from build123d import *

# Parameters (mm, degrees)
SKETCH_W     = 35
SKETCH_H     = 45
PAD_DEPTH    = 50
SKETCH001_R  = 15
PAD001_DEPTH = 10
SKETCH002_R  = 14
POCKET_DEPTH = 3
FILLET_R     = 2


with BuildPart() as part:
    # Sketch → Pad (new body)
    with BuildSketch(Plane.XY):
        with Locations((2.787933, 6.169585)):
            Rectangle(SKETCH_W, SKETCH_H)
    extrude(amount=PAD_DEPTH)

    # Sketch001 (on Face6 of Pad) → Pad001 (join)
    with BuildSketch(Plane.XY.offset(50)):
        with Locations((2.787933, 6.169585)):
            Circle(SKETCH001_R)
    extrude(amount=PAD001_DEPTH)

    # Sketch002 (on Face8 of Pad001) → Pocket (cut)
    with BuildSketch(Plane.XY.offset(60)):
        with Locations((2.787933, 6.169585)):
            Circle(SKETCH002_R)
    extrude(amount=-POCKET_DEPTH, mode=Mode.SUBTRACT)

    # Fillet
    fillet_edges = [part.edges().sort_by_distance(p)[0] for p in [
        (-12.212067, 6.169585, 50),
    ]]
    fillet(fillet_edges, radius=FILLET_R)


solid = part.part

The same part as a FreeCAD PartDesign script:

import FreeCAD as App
import Part
import Sketcher
from FreeCAD import Vector


def edges_at(feature, points):
    """Names of the edges that pass closest to the given points."""
    edges = feature.Shape.Edges
    near = lambda p: min(range(len(edges)), key=lambda i: edges[i].distToShape(Part.Vertex(*p))[0])
    return sorted({f"Edge{near(p) + 1}" for p in points})


def add_polygon(sketch, points):
    """Adds a closed chain of lines whose ends are joined by coincident constraints."""
    first, n = sketch.GeometryCount, len(points)
    for a, b in zip(points, points[1:] + points[:1]):
        sketch.addGeometry(Part.LineSegment(App.Vector(*a, 0), App.Vector(*b, 0)), False)
    for i in range(n):
        sketch.addConstraint(Sketcher.Constraint("Coincident", first + i, 2, first + (i + 1) % n, 1))

doc = App.newDocument("Part")
body = doc.addObject("PartDesign::Body", "Body")

# Sketch on XY plane
sketch1 = body.newObject("Sketcher::SketchObject", "Sketch")
sketch1.AttachmentSupport = (doc.getObject("XY_Plane"), [""])
sketch1.MapMode = "FlatFace"
add_polygon(sketch1, [(-14.712067, 28.669585), (-14.712067, -16.330415), (20.287933, -16.330415), (20.287933, 28.669585)])  # lines 0-3
sketch1.addConstraint([
    Sketcher.Constraint("Vertical", 0),
    Sketcher.Constraint("Horizontal", 1),
    Sketcher.Constraint("Vertical", 2),
    Sketcher.Constraint("Horizontal", 3),
    Sketcher.Constraint("DistanceX", 1, 1, 1, 2, 35.0),
    Sketcher.Constraint("DistanceY", 0, 2, 0, 1, 45.0),
    Sketcher.Constraint("DistanceX", 0, 2, -1, 1, 14.712067),
    Sketcher.Constraint("DistanceY", 0, 2, -1, 1, 16.330415),
])
pad1 = body.newObject("PartDesign::Pad", "Pad")
pad1.Profile = sketch1
pad1.Length = 50

# Sketch on XY plane
sketch2 = body.newObject("Sketcher::SketchObject", "Sketch001")
sketch2.AttachmentSupport = (doc.getObject("XY_Plane"), [""])
sketch2.MapMode = "FlatFace"
sketch2.AttachmentOffset = App.Placement(Vector(0, 0, 50), App.Rotation())
sketch2.addGeometry(Part.Circle(Vector(2.787933, 6.169585, 0), Vector(0, 0, 1), 15), False)
sketch2.addConstraint([
    Sketcher.Constraint("Diameter", 0, 30.0),
    Sketcher.Constraint("DistanceX", -1, 1, 0, 3, 2.787933),
    Sketcher.Constraint("DistanceY", -1, 1, 0, 3, 6.169585),
])
pad2 = body.newObject("PartDesign::Pad", "Pad001")
pad2.Profile = sketch2
pad2.Length = 10

# Sketch on XY plane
sketch3 = body.newObject("Sketcher::SketchObject", "Sketch002")
sketch3.AttachmentSupport = (doc.getObject("XY_Plane"), [""])
sketch3.MapMode = "FlatFace"
sketch3.AttachmentOffset = App.Placement(Vector(0, 0, 60), App.Rotation())
sketch3.addGeometry(Part.Circle(Vector(2.787933, 6.169585, 0), Vector(0, 0, 1), 14), False)
sketch3.addConstraint([
    Sketcher.Constraint("Diameter", 0, 28.0),
    Sketcher.Constraint("DistanceX", -1, 1, 0, 3, 2.787933),
    Sketcher.Constraint("DistanceY", -1, 1, 0, 3, 6.169585),
])
pocket1 = body.newObject("PartDesign::Pocket", "Pocket")
pocket1.Profile = sketch3
pocket1.Length = 3
doc.recompute()

fillet = body.newObject("PartDesign::Fillet", "Fillet")
fillet.Base = (pocket1, edges_at(pocket1, [(-12.212, 6.17, 50)]))
fillet.Radius = 2

doc.recompute()
